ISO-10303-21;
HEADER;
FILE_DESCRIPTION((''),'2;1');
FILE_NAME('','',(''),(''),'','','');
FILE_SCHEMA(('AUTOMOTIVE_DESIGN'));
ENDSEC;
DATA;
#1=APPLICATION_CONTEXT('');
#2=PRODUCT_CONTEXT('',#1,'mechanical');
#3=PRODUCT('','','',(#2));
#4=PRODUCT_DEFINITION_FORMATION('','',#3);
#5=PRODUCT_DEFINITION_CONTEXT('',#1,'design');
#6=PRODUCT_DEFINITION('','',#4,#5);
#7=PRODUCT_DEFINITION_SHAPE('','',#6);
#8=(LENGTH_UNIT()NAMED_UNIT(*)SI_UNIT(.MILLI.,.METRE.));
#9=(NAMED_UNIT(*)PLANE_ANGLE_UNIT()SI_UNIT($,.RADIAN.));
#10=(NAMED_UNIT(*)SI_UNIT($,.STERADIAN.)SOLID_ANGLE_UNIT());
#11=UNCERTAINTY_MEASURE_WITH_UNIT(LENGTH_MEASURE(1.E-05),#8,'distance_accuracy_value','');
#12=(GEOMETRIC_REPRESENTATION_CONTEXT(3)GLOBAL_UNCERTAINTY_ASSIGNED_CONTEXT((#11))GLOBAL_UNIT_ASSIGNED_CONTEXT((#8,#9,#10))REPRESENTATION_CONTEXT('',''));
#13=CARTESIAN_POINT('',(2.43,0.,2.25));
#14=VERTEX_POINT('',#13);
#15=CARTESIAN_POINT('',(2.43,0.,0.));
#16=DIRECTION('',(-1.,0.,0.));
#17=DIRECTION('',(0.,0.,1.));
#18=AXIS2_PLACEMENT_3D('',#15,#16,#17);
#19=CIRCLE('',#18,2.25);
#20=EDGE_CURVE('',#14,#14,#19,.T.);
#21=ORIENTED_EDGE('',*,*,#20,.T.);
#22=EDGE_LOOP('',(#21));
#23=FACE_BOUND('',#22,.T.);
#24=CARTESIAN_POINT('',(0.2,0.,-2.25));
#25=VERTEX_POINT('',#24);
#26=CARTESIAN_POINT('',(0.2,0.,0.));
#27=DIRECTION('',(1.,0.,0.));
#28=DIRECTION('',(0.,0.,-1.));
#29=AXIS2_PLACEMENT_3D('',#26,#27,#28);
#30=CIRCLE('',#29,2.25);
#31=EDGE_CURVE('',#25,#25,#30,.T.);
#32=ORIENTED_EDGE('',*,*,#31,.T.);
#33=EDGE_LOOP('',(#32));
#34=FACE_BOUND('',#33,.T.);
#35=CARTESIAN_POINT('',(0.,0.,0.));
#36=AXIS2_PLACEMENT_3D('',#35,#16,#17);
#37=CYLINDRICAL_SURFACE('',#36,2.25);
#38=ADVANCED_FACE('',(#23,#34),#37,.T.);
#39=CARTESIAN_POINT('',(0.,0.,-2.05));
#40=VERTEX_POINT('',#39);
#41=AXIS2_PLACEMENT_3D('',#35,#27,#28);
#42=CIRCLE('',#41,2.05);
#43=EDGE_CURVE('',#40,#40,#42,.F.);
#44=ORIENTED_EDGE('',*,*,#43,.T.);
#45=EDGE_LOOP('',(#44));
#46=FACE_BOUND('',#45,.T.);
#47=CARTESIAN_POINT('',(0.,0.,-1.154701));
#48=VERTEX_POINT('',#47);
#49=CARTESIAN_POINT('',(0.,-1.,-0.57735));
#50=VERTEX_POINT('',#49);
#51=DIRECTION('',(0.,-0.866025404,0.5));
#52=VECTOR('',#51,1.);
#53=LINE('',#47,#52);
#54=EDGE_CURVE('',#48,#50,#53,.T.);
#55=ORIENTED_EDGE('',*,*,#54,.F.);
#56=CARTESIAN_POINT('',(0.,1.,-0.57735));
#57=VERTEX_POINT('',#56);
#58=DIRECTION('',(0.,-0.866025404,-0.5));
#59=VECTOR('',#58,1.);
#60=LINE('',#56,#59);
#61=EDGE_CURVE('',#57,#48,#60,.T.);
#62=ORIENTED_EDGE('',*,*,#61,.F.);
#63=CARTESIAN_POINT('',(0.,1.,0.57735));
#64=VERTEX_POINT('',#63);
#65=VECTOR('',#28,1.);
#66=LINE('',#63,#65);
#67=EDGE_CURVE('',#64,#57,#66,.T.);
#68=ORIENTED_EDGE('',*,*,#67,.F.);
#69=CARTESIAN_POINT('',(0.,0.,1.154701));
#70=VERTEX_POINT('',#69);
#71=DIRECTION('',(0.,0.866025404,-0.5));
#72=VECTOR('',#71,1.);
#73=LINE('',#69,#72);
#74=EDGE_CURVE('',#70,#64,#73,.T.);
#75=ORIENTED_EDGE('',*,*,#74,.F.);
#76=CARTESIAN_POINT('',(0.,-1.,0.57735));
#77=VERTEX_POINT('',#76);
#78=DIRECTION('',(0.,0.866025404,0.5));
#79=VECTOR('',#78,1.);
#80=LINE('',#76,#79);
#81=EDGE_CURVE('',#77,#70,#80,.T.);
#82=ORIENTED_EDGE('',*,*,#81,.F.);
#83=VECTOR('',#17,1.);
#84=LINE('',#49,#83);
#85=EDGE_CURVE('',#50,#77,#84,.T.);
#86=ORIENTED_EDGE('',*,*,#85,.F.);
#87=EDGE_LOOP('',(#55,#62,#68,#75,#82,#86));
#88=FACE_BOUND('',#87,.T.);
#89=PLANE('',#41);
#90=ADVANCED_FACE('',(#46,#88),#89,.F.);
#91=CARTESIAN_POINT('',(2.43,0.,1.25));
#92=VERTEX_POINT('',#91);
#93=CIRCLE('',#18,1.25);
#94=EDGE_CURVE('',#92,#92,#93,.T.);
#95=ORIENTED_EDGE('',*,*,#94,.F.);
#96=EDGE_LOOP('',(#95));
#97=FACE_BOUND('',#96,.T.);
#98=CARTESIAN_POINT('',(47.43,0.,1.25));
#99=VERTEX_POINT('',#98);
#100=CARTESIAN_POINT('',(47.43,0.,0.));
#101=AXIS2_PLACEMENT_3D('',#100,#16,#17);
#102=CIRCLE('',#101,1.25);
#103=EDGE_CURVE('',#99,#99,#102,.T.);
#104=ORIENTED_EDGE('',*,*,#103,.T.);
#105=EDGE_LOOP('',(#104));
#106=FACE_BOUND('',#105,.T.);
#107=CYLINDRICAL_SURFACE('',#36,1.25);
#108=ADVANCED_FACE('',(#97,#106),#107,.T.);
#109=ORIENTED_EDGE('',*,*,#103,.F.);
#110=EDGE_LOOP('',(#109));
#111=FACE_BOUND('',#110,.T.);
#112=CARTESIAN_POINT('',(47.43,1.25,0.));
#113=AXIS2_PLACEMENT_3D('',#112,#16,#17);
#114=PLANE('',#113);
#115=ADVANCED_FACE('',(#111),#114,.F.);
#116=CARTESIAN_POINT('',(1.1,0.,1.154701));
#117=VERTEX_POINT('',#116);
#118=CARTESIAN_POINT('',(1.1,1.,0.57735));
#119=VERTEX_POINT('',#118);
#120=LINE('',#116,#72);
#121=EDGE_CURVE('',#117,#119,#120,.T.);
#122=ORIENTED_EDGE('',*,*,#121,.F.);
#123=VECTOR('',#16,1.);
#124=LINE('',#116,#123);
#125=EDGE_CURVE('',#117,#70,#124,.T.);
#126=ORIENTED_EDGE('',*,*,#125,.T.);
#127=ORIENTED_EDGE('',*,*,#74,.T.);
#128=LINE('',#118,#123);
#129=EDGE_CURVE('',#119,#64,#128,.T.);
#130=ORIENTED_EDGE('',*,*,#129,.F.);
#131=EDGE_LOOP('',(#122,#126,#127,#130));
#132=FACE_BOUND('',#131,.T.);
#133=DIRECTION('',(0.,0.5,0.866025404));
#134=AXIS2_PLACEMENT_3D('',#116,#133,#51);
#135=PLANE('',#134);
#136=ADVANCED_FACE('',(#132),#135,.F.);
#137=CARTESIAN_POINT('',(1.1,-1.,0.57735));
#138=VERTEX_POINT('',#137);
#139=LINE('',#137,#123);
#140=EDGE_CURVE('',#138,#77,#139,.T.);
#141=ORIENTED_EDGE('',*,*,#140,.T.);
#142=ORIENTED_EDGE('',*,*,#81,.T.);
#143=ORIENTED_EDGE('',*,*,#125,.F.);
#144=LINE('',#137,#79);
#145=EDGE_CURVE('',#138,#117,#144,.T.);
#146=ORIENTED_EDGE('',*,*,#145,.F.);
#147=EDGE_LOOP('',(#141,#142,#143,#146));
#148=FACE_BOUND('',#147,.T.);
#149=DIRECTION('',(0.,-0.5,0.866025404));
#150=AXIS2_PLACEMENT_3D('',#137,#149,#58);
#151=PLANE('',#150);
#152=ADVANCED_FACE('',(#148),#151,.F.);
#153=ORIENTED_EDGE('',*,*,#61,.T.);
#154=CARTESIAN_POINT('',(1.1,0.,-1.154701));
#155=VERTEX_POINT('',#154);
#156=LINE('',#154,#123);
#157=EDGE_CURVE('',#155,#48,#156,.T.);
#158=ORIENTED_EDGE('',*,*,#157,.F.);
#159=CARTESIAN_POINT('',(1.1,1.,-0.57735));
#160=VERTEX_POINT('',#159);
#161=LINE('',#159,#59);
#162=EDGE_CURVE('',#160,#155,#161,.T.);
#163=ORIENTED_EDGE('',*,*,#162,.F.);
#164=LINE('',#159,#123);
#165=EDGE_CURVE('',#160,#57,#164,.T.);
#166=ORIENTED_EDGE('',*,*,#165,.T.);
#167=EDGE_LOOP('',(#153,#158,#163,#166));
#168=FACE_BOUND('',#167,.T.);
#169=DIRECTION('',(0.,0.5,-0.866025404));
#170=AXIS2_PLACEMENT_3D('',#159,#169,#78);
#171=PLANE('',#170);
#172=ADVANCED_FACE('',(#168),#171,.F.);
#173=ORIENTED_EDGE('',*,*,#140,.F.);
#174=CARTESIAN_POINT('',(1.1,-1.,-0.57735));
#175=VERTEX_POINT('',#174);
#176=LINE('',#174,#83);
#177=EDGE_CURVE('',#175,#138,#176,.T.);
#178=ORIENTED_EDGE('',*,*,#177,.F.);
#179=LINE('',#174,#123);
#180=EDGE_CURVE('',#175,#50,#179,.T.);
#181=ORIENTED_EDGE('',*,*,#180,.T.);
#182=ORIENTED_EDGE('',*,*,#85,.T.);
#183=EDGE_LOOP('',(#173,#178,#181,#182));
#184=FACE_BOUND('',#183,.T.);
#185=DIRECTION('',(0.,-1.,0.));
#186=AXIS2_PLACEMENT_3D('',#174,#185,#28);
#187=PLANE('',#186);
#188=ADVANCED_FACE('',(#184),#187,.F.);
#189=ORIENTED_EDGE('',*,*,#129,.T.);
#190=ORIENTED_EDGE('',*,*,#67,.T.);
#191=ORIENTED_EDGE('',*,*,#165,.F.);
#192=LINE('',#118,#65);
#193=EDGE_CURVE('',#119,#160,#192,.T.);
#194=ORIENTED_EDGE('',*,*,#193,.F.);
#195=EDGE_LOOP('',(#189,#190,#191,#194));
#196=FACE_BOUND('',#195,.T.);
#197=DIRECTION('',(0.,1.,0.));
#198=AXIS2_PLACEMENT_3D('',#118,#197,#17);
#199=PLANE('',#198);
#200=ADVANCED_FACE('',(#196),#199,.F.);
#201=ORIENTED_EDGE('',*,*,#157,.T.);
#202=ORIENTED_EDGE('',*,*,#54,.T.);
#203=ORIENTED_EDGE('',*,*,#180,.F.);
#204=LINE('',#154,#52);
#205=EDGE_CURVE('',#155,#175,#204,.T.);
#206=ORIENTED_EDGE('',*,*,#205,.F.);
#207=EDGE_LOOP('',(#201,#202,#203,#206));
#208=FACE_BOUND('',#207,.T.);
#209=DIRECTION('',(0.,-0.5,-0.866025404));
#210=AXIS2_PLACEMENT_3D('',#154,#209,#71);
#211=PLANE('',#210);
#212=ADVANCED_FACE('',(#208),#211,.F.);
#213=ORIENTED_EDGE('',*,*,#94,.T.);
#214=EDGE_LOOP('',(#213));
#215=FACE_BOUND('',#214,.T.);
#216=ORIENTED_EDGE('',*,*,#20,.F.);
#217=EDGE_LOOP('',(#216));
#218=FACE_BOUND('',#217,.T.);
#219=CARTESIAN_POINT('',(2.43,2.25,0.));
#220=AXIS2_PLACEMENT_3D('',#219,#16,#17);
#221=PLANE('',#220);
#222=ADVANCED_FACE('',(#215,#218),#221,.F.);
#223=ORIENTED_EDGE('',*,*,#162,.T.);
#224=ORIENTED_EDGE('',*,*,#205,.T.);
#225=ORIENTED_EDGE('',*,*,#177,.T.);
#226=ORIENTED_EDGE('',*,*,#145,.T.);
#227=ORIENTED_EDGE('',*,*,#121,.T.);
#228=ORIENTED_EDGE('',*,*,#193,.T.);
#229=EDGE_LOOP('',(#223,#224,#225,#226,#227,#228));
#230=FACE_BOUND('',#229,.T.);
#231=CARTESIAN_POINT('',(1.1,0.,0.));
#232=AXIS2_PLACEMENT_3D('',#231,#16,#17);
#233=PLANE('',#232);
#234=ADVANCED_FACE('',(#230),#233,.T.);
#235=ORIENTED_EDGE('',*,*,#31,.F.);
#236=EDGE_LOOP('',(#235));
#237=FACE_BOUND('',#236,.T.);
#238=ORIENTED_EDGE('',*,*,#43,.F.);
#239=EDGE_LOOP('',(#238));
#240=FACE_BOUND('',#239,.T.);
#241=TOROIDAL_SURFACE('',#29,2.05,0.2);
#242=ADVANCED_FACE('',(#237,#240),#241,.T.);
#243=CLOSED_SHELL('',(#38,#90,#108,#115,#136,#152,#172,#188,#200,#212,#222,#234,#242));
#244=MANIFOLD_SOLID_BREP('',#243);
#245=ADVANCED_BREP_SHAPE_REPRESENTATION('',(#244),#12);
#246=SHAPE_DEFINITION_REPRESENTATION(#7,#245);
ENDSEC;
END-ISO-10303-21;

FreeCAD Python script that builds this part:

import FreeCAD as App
import Part
import Sketcher
Q = App.Units.Quantity


def edges_at(feature, points):
    """Names of the edges that pass closest to the given points."""
    edges = feature.Shape.Edges
    near = lambda p: min(range(len(edges)), key=lambda i: edges[i].distToShape(Part.Vertex(*p))[0])
    return sorted({f"Edge{near(p) + 1}" for p in points})


def add_polygon(sketch, points):
    """Adds a closed chain of lines whose ends are joined by coincident constraints."""
    first, n = sketch.GeometryCount, len(points)
    for a, b in zip(points, points[1:] + points[:1]):
        sketch.addGeometry(Part.LineSegment(App.Vector(*a, 0), App.Vector(*b, 0)), False)
    for i in range(n):
        sketch.addConstraint(Sketcher.Constraint("Coincident", first + i, 2, first + (i + 1) % n, 1))

doc = App.newDocument("Part")
params = doc.addObject("Spreadsheet::Sheet", "Params")
for row, (alias, value) in enumerate([
    ("sketch1_width", "45 mm"),
    ("sketch1_height", "1 mm"),
    ("sketch1_width2", "47.43 mm"),
    ("sketch1_height2", "2.25 mm"),
    ("revolution_angle", "360 deg"),
    ("pocket1_length", "1.1 mm"),
    ("fillet_radius", "0.2 mm"),
], start=1):
    params.set(f"A{row}", alias)
    params.set(f"B{row}", "=" + value)
    params.setAlias(f"B{row}", alias)

body = doc.addObject("PartDesign::Body", "Body")

# Sketch on XY plane
sketch1 = doc.addObject("Sketcher::SketchObject", "Sketch")
body.addObject(sketch1)
sketch1.AttachmentSupport = (doc.XY_Plane, [""])
sketch1.MapMode = "FlatFace"
add_polygon(sketch1, [(0, 2.2), (0, 0), (47.4, 0), (47.4, 1.2), (2.4, 1.2), (2.4, 2.2)])  # lines 0-5
sketch1.addConstraint(Sketcher.Constraint("Vertical", 0))
sketch1.addConstraint(Sketcher.Constraint("Horizontal", 1))
sketch1.addConstraint(Sketcher.Constraint("Vertical", 2))
sketch1.addConstraint(Sketcher.Constraint("Horizontal", 3))
sketch1.addConstraint(Sketcher.Constraint("Vertical", 4))
sketch1.addConstraint(Sketcher.Constraint("Horizontal", 5))
sketch1.addConstraint(Sketcher.Constraint("Coincident", 0, 2, -1, 1))
sketch1.addConstraint(Sketcher.Constraint("DistanceX", 3, 2, 3, 1, Q("45 mm")))
sketch1.addConstraint(Sketcher.Constraint("DistanceY", 4, 1, 4, 2, Q("1 mm")))
sketch1.addConstraint(Sketcher.Constraint("DistanceX", 1, 1, 1, 2, Q("47.43 mm")))
sketch1.addConstraint(Sketcher.Constraint("DistanceY", 0, 2, 0, 1, Q("2.25 mm")))
sketch1.setExpression("Constraints[13]", "Params.sketch1_width")
sketch1.setExpression("Constraints[14]", "Params.sketch1_height")
sketch1.setExpression("Constraints[15]", "Params.sketch1_width2")
sketch1.setExpression("Constraints[16]", "Params.sketch1_height2")
revolution = doc.addObject("PartDesign::Revolution", "Revolution")
body.addObject(revolution)
revolution.Profile = sketch1
revolution.ReferenceAxis = (sketch1, ["H_Axis"])
revolution.setExpression("Angle", "Params.revolution_angle")

# Sketch on YZ plane
sketch2 = doc.addObject("Sketcher::SketchObject", "Sketch001")
body.addObject(sketch2)
sketch2.AttachmentSupport = (doc.YZ_Plane, [""])
sketch2.MapMode = "FlatFace"
add_polygon(sketch2, [(0, -1.2), (-1, -0.6), (-1, 0.6), (0, 1.2), (1, 0.6), (1, -0.6)])  # lines 0-5
sketch2.addConstraint(Sketcher.Constraint("Vertical", 1))
sketch2.addConstraint(Sketcher.Constraint("Vertical", 4))
sketch2.addConstraint(Sketcher.Constraint("Symmetric", 0, 2, 3, 2, -1, 1))
sketch2.addConstraint(Sketcher.Constraint("Symmetric", 2, 2, 5, 2, -1, 1))
sketch2.addConstraint(Sketcher.Constraint("PointOnObject", 2, 2, -2))
sketch2.addConstraint(Sketcher.Constraint("Parallel", 2, 5))
sketch2.addConstraint(Sketcher.Constraint("Horizontal", 1, 2, 3, 2))
sketch2.addConstraint(Sketcher.Constraint("Angle", 0, Q("150 deg")))
sketch2.addConstraint(Sketcher.Constraint("DistanceX", 0, 2, -1, 1, Q("1 mm")))
sketch2.addConstraint(Sketcher.Constraint("DistanceY", 1, 1, 1, 2, Q("1.154701 mm")))
pocket1 = doc.addObject("PartDesign::Pocket", "Pocket")
body.addObject(pocket1)
pocket1.Profile = sketch2
pocket1.setExpression("Length", "Params.pocket1_length")
pocket1.Reversed = True
doc.recompute()

fillet = doc.addObject("PartDesign::Fillet", "Fillet")
body.addObject(fillet)
fillet.Base = (pocket1, edges_at(pocket1, [(0, -2.25, 0)]))
fillet.setExpression("Radius", "Params.fillet_radius")

doc.recompute()
